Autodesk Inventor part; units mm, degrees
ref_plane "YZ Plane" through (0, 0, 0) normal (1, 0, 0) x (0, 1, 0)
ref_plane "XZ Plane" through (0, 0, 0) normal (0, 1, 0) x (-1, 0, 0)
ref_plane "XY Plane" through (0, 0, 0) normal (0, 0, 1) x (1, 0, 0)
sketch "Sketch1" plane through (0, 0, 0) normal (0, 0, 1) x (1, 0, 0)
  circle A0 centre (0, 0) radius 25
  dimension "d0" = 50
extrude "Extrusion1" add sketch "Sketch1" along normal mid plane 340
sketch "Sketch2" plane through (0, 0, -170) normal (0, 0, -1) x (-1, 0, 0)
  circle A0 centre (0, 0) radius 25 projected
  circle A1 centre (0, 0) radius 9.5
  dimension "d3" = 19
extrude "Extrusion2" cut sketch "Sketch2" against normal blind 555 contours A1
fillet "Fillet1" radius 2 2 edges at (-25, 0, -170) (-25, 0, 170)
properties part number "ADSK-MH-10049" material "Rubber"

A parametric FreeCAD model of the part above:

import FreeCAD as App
import Part
import Sketcher

V = App.Vector
Q = App.Units.Quantity


def edges_at(feature, points):
    """Names of the edges that pass closest to the given points."""
    edges = feature.Shape.Edges
    near = lambda p: min(range(len(edges)), key=lambda i: edges[i].distToShape(Part.Vertex(*p))[0])
    return sorted({f"Edge{near(p) + 1}" for p in points})

doc = App.newDocument("Part")
body = doc.addObject("PartDesign::Body", "Body")

# Sketch on XY plane
sketch1 = doc.addObject("Sketcher::SketchObject", "Sketch")
body.addObject(sketch1)
sketch1.AttachmentSupport = (doc.XY_Plane, [""])
sketch1.MapMode = "FlatFace"
sketch1.addGeometry(Part.Circle(V(0, 0, 0), V(0, 0, 1), 25), False)
sketch1.addConstraint([
    Sketcher.Constraint("Coincident", 0, 3, -1, 1),
    Sketcher.Constraint("Diameter", 0, Q("50 mm")),
])
pad1 = doc.addObject("PartDesign::Pad", "Pad")
body.addObject(pad1)
pad1.Profile = sketch1
pad1.Length = 340
pad1.Midplane = True

# Sketch on XY plane
sketch2 = doc.addObject("Sketcher::SketchObject", "Sketch001")
body.addObject(sketch2)
sketch2.AttachmentSupport = (doc.XY_Plane, [""])
sketch2.MapMode = "FlatFace"
sketch2.AttachmentOffset = App.Placement(V(0, 0, -170), App.Rotation())
sketch2.addGeometry(Part.Circle(V(0, 0, 0), V(0, 0, 1), 9.5), False)
sketch2.addConstraint([
    Sketcher.Constraint("Coincident", 0, 3, -1, 1),
    Sketcher.Constraint("Diameter", 0, Q("19 mm")),
])
pocket1 = doc.addObject("PartDesign::Pocket", "Pocket")
body.addObject(pocket1)
pocket1.Profile = sketch2
pocket1.Length = 555
pocket1.Reversed = True
doc.recompute()

fillet = doc.addObject("PartDesign::Fillet", "Fillet")
body.addObject(fillet)
fillet.Base = (pocket1, edges_at(pocket1, [(-25, 0, -170), (-25, 0, 170)]))
fillet.Radius = 2

doc.recompute()
